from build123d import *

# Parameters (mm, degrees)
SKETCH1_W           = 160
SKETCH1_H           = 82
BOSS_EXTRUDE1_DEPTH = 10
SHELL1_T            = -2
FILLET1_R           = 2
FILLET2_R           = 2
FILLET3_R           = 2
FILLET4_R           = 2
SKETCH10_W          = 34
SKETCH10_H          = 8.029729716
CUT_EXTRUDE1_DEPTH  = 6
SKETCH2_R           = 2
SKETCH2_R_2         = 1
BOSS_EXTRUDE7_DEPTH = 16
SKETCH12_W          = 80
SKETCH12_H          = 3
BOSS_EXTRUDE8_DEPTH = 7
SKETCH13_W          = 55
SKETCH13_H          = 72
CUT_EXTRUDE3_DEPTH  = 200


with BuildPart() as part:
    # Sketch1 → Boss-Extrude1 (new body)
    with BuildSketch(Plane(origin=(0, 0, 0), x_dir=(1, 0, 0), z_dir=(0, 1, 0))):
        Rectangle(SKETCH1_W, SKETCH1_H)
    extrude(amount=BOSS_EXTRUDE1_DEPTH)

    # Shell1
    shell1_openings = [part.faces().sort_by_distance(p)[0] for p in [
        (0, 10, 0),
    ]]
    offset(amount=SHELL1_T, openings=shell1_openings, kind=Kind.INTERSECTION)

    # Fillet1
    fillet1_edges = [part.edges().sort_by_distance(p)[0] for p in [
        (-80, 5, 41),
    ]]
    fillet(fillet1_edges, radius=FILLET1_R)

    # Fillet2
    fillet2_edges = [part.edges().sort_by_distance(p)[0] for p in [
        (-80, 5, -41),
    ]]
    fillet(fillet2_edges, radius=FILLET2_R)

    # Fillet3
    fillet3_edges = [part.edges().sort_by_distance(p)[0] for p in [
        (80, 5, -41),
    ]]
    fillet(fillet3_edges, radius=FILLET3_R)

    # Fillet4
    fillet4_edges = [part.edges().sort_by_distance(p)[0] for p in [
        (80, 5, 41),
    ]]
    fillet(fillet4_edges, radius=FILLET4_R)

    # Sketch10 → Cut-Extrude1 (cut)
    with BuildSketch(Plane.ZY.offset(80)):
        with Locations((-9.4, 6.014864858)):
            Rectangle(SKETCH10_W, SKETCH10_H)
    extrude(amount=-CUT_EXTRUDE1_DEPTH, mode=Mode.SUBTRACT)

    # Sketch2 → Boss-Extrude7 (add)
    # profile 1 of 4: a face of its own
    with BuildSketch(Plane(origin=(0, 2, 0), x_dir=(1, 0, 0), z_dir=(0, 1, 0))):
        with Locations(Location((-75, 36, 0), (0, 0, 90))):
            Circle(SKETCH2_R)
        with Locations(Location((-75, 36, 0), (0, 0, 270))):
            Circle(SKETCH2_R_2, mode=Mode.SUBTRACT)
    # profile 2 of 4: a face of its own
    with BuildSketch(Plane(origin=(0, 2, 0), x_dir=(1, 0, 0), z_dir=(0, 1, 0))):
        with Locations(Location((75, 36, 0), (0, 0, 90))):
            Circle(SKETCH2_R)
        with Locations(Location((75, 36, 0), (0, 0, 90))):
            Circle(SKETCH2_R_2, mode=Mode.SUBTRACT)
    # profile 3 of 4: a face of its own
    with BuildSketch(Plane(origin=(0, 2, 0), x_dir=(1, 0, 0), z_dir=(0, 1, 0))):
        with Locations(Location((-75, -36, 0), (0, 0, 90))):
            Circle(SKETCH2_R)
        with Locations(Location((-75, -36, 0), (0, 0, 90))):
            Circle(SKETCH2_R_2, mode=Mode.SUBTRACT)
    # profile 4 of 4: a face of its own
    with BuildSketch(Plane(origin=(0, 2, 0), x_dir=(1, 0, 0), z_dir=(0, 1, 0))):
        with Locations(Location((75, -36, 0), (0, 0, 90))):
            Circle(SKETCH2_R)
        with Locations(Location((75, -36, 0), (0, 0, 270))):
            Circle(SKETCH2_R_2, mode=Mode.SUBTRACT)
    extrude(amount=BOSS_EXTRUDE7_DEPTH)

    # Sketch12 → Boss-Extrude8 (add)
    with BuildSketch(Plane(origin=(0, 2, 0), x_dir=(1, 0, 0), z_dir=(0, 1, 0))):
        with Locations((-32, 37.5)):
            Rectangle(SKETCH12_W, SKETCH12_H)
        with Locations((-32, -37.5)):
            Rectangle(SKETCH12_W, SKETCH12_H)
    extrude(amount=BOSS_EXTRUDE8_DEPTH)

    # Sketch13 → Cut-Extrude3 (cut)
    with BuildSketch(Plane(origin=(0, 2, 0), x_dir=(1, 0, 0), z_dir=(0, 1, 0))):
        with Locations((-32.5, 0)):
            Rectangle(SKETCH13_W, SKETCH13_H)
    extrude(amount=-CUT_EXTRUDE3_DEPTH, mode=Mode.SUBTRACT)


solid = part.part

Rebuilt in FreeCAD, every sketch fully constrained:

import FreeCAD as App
import Part
import Sketcher
from FreeCAD import Vector
Q = App.Units.Quantity


def edges_at(feature, points):
    """Names of the edges that pass closest to the given points."""
    edges = feature.Shape.Edges
    near = lambda p: min(range(len(edges)), key=lambda i: edges[i].distToShape(Part.Vertex(*p))[0])
    return sorted({f"Edge{near(p) + 1}" for p in points})


def faces_at(feature, points):
    """Names of the faces that lie closest to the given points."""
    faces = feature.Shape.Faces
    near = lambda p: min(range(len(faces)), key=lambda i: faces[i].distToShape(Part.Vertex(*p))[0])
    return sorted({f"Face{near(p) + 1}" for p in points})


def add_polygon(sketch, points):
    """Adds a closed chain of lines whose ends are joined by coincident constraints."""
    first, n = sketch.GeometryCount, len(points)
    for a, b in zip(points, points[1:] + points[:1]):
        sketch.addGeometry(Part.LineSegment(App.Vector(*a, 0), App.Vector(*b, 0)), False)
    for i in range(n):
        sketch.addConstraint(Sketcher.Constraint("Coincident", first + i, 2, first + (i + 1) % n, 1))

doc = App.newDocument("Part")
body = doc.addObject("PartDesign::Body", "Body")

# Sketch on XZ plane
sketch1 = body.newObject("Sketcher::SketchObject", "Sketch")
sketch1.AttachmentSupport = (doc.getObject("XZ_Plane"), [""])
sketch1.MapMode = "FlatFace"
add_polygon(sketch1, [(-80, -41), (-80, 41), (80, 41), (80, -41)])  # lines 0-3
sketch1.addConstraint(Sketcher.Constraint("Vertical", 0))
sketch1.addConstraint(Sketcher.Constraint("Horizontal", 1))
sketch1.addConstraint(Sketcher.Constraint("Vertical", 2))
sketch1.addConstraint(Sketcher.Constraint("Horizontal", 3))
sketch1.addConstraint(Sketcher.Constraint("Symmetric", 0, 2, 2, 2, -1, 1))
sketch1.addConstraint(Sketcher.Constraint("DistanceX", 1, 1, 1, 2, Q("160 mm")))
sketch1.addConstraint(Sketcher.Constraint("DistanceY", 0, 1, 0, 2, Q("82 mm")))
pad1 = body.newObject("PartDesign::Pad", "Pad")
pad1.Profile = sketch1
pad1.Length = 10
pad1.Reversed = True
doc.recompute()

thickness = body.newObject("PartDesign::Thickness", "Thickness")
thickness.Base = (pad1, faces_at(pad1, [(0, 10, 0)]))
thickness.Value = 2
thickness.Reversed = True
thickness.Join = "Intersection"
doc.recompute()

fillet = body.newObject("PartDesign::Fillet", "Fillet")
fillet.Base = (thickness, edges_at(thickness, [(-80, 5, 41)]))
fillet.Radius = 2
doc.recompute()

fillet2 = body.newObject("PartDesign::Fillet", "Fillet001")
fillet2.Base = (fillet, edges_at(fillet, [(-80, 5, -41)]))
fillet2.Radius = 2
doc.recompute()

fillet3 = body.newObject("PartDesign::Fillet", "Fillet002")
fillet3.Base = (fillet2, edges_at(fillet2, [(80, 5, -41)]))
fillet3.Radius = 2
doc.recompute()

fillet4 = body.newObject("PartDesign::Fillet", "Fillet003")
fillet4.Base = (fillet3, edges_at(fillet3, [(80, 5, 41)]))
fillet4.Radius = 2

# Sketch on YZ plane
sketch2 = body.newObject("Sketcher::SketchObject", "Sketch001")
sketch2.AttachmentSupport = (doc.getObject("YZ_Plane"), [""])
sketch2.MapMode = "FlatFace"
sketch2.AttachmentOffset = App.Placement(Vector(0, 0, -80), App.Rotation())
add_polygon(sketch2, [(10, -26), (2, -26), (2, 8), (10, 8)])  # lines 0-3
sketch2.addConstraint(Sketcher.Constraint("Horizontal", 0))
sketch2.addConstraint(Sketcher.Constraint("Vertical", 1))
sketch2.addConstraint(Sketcher.Constraint("Horizontal", 2))
sketch2.addConstraint(Sketcher.Constraint("Vertical", 3))
sketch2.addConstraint(Sketcher.Constraint("DistanceY", 1, 1, 1, 2, Q("34 mm")))
sketch2.addConstraint(Sketcher.Constraint("DistanceX", -1, 1, 0, 2, Q("2 mm")))
sketch2.addConstraint(Sketcher.Constraint("DistanceY", 0, 2, -1, 1, Q("26.4 mm")))
sketch2.addConstraint(Sketcher.Constraint("DistanceX", 0, 2, 0, 1, Q("8.02973 mm")))
pocket1 = body.newObject("PartDesign::Pocket", "Pocket")
pocket1.Profile = sketch2
pocket1.Length = 6
pocket1.Reversed = True

# Sketch on XZ plane
sketch3 = body.newObject("Sketcher::SketchObject", "Sketch002")
sketch3.AttachmentSupport = (doc.getObject("XZ_Plane"), [""])
sketch3.MapMode = "FlatFace"
sketch3.AttachmentOffset = App.Placement(Vector(0, 0, -2), App.Rotation())
sketch3.addGeometry(Part.Circle(Vector(-75, -36, 0), Vector(0, 0, 1), 2), False)
sketch3.addGeometry(Part.Circle(Vector(-75, -36, 0), Vector(0, 0, 1), 1), False)
sketch3.addGeometry(Part.Circle(Vector(75, -36, 0), Vector(0, 0, 1), 2), False)
sketch3.addGeometry(Part.Circle(Vector(75, -36, 0), Vector(0, 0, 1), 1), False)
sketch3.addGeometry(Part.Circle(Vector(-75, 36, 0), Vector(0, 0, 1), 2), False)
sketch3.addGeometry(Part.Circle(Vector(-75, 36, 0), Vector(0, 0, 1), 1), False)
sketch3.addGeometry(Part.Circle(Vector(75, 36, 0), Vector(0, 0, 1), 2), False)
sketch3.addGeometry(Part.Circle(Vector(75, 36, 0), Vector(0, 0, 1), 1), False)
sketch3.addConstraint(Sketcher.Constraint("Coincident", 1, 3, 0, 3))
sketch3.addConstraint(Sketcher.Constraint("Coincident", 3, 3, 2, 3))
sketch3.addConstraint(Sketcher.Constraint("Coincident", 5, 3, 4, 3))
sketch3.addConstraint(Sketcher.Constraint("Coincident", 7, 3, 6, 3))
sketch3.addConstraint(Sketcher.Constraint("Equal", 0, 2))
sketch3.addConstraint(Sketcher.Constraint("Equal", 1, 3))
sketch3.addConstraint(Sketcher.Constraint("Equal", 2, 4))
sketch3.addConstraint(Sketcher.Constraint("Equal", 3, 5))
sketch3.addConstraint(Sketcher.Constraint("Equal", 4, 6))
sketch3.addConstraint(Sketcher.Constraint("Equal", 5, 7))
sketch3.addConstraint(Sketcher.Constraint("Symmetric", 2, 3, 4, 3, -1, 1))
sketch3.addConstraint(Sketcher.Constraint("Symmetric", 0, 3, 6, 3, -1, 1))
sketch3.addConstraint(Sketcher.Constraint("Symmetric", 0, 3, 2, 3, -2))
sketch3.addConstraint(Sketcher.Constraint("Diameter", 0, Q("4 mm")))
sketch3.addConstraint(Sketcher.Constraint("Diameter", 1, Q("2 mm")))
sketch3.addConstraint(Sketcher.Constraint("DistanceX", 0, 3, -1, 1, Q("75 mm")))
sketch3.addConstraint(Sketcher.Constraint("DistanceY", 0, 3, -1, 1, Q("36 mm")))
pad2 = body.newObject("PartDesign::Pad", "Pad001")
pad2.Profile = sketch3
pad2.Length = 16
pad2.Reversed = True

# Sketch on XZ plane
sketch4 = body.newObject("Sketcher::SketchObject", "Sketch003")
sketch4.AttachmentSupport = (doc.getObject("XZ_Plane"), [""])
sketch4.MapMode = "FlatFace"
sketch4.AttachmentOffset = App.Placement(Vector(0, 0, -2), App.Rotation())
add_polygon(sketch4, [(-72, -39), (-72, -36), (8, -36), (8, -39)])  # lines 0-3
add_polygon(sketch4, [(-72, 36), (-72, 39), (8, 39), (8, 36)])  # lines 4-7
sketch4.addConstraint(Sketcher.Constraint("Vertical", 0))
sketch4.addConstraint(Sketcher.Constraint("Horizontal", 1))
sketch4.addConstraint(Sketcher.Constraint("Vertical", 2))
sketch4.addConstraint(Sketcher.Constraint("Horizontal", 3))
sketch4.addConstraint(Sketcher.Constraint("Vertical", 4))
sketch4.addConstraint(Sketcher.Constraint("Horizontal", 5))
sketch4.addConstraint(Sketcher.Constraint("Vertical", 6))
sketch4.addConstraint(Sketcher.Constraint("Horizontal", 7))
sketch4.addConstraint(Sketcher.Constraint("Symmetric", 3, 2, 4, 2, -1))
sketch4.addConstraint(Sketcher.Constraint("Symmetric", 1, 2, 6, 2, -1))
sketch4.addConstraint(Sketcher.Constraint("DistanceX", 1, 1, 1, 2, Q("80 mm")))
sketch4.addConstraint(Sketcher.Constraint("DistanceY", 0, 1, 0, 2, Q("3 mm")))
sketch4.addConstraint(Sketcher.Constraint("DistanceX", 0, 2, -1, 1, Q("72 mm")))
sketch4.addConstraint(Sketcher.Constraint("DistanceY", 0, 2, -1, 1, Q("36 mm")))
pad3 = body.newObject("PartDesign::Pad", "Pad002")
pad3.Profile = sketch4
pad3.Length = 7
pad3.Reversed = True

# Sketch on XZ plane
sketch5 = body.newObject("Sketcher::SketchObject", "Sketch004")
sketch5.AttachmentSupport = (doc.getObject("XZ_Plane"), [""])
sketch5.MapMode = "FlatFace"
sketch5.AttachmentOffset = App.Placement(Vector(0, 0, -2), App.Rotation())
add_polygon(sketch5, [(-60, -36), (-60, 36), (-5, 36), (-5, -36)])  # lines 0-3
sketch5.addConstraint(Sketcher.Constraint("Vertical", 0))
sketch5.addConstraint(Sketcher.Constraint("Horizontal", 1))
sketch5.addConstraint(Sketcher.Constraint("Vertical", 2))
sketch5.addConstraint(Sketcher.Constraint("Horizontal", 3))
sketch5.addConstraint(Sketcher.Constraint("DistanceX", 1, 1, 1, 2, Q("55 mm")))
sketch5.addConstraint(Sketcher.Constraint("DistanceY", 0, 1, 0, 2, Q("72 mm")))
sketch5.addConstraint(Sketcher.Constraint("DistanceX", 0, 2, -1, 1, Q("60 mm")))
sketch5.addConstraint(Sketcher.Constraint("DistanceY", -1, 1, 0, 2, Q("36 mm")))
pocket2 = body.newObject("PartDesign::Pocket", "Pocket001")
pocket2.Profile = sketch5
pocket2.Length = 200
pocket2.Reversed = True

doc.recompute()
